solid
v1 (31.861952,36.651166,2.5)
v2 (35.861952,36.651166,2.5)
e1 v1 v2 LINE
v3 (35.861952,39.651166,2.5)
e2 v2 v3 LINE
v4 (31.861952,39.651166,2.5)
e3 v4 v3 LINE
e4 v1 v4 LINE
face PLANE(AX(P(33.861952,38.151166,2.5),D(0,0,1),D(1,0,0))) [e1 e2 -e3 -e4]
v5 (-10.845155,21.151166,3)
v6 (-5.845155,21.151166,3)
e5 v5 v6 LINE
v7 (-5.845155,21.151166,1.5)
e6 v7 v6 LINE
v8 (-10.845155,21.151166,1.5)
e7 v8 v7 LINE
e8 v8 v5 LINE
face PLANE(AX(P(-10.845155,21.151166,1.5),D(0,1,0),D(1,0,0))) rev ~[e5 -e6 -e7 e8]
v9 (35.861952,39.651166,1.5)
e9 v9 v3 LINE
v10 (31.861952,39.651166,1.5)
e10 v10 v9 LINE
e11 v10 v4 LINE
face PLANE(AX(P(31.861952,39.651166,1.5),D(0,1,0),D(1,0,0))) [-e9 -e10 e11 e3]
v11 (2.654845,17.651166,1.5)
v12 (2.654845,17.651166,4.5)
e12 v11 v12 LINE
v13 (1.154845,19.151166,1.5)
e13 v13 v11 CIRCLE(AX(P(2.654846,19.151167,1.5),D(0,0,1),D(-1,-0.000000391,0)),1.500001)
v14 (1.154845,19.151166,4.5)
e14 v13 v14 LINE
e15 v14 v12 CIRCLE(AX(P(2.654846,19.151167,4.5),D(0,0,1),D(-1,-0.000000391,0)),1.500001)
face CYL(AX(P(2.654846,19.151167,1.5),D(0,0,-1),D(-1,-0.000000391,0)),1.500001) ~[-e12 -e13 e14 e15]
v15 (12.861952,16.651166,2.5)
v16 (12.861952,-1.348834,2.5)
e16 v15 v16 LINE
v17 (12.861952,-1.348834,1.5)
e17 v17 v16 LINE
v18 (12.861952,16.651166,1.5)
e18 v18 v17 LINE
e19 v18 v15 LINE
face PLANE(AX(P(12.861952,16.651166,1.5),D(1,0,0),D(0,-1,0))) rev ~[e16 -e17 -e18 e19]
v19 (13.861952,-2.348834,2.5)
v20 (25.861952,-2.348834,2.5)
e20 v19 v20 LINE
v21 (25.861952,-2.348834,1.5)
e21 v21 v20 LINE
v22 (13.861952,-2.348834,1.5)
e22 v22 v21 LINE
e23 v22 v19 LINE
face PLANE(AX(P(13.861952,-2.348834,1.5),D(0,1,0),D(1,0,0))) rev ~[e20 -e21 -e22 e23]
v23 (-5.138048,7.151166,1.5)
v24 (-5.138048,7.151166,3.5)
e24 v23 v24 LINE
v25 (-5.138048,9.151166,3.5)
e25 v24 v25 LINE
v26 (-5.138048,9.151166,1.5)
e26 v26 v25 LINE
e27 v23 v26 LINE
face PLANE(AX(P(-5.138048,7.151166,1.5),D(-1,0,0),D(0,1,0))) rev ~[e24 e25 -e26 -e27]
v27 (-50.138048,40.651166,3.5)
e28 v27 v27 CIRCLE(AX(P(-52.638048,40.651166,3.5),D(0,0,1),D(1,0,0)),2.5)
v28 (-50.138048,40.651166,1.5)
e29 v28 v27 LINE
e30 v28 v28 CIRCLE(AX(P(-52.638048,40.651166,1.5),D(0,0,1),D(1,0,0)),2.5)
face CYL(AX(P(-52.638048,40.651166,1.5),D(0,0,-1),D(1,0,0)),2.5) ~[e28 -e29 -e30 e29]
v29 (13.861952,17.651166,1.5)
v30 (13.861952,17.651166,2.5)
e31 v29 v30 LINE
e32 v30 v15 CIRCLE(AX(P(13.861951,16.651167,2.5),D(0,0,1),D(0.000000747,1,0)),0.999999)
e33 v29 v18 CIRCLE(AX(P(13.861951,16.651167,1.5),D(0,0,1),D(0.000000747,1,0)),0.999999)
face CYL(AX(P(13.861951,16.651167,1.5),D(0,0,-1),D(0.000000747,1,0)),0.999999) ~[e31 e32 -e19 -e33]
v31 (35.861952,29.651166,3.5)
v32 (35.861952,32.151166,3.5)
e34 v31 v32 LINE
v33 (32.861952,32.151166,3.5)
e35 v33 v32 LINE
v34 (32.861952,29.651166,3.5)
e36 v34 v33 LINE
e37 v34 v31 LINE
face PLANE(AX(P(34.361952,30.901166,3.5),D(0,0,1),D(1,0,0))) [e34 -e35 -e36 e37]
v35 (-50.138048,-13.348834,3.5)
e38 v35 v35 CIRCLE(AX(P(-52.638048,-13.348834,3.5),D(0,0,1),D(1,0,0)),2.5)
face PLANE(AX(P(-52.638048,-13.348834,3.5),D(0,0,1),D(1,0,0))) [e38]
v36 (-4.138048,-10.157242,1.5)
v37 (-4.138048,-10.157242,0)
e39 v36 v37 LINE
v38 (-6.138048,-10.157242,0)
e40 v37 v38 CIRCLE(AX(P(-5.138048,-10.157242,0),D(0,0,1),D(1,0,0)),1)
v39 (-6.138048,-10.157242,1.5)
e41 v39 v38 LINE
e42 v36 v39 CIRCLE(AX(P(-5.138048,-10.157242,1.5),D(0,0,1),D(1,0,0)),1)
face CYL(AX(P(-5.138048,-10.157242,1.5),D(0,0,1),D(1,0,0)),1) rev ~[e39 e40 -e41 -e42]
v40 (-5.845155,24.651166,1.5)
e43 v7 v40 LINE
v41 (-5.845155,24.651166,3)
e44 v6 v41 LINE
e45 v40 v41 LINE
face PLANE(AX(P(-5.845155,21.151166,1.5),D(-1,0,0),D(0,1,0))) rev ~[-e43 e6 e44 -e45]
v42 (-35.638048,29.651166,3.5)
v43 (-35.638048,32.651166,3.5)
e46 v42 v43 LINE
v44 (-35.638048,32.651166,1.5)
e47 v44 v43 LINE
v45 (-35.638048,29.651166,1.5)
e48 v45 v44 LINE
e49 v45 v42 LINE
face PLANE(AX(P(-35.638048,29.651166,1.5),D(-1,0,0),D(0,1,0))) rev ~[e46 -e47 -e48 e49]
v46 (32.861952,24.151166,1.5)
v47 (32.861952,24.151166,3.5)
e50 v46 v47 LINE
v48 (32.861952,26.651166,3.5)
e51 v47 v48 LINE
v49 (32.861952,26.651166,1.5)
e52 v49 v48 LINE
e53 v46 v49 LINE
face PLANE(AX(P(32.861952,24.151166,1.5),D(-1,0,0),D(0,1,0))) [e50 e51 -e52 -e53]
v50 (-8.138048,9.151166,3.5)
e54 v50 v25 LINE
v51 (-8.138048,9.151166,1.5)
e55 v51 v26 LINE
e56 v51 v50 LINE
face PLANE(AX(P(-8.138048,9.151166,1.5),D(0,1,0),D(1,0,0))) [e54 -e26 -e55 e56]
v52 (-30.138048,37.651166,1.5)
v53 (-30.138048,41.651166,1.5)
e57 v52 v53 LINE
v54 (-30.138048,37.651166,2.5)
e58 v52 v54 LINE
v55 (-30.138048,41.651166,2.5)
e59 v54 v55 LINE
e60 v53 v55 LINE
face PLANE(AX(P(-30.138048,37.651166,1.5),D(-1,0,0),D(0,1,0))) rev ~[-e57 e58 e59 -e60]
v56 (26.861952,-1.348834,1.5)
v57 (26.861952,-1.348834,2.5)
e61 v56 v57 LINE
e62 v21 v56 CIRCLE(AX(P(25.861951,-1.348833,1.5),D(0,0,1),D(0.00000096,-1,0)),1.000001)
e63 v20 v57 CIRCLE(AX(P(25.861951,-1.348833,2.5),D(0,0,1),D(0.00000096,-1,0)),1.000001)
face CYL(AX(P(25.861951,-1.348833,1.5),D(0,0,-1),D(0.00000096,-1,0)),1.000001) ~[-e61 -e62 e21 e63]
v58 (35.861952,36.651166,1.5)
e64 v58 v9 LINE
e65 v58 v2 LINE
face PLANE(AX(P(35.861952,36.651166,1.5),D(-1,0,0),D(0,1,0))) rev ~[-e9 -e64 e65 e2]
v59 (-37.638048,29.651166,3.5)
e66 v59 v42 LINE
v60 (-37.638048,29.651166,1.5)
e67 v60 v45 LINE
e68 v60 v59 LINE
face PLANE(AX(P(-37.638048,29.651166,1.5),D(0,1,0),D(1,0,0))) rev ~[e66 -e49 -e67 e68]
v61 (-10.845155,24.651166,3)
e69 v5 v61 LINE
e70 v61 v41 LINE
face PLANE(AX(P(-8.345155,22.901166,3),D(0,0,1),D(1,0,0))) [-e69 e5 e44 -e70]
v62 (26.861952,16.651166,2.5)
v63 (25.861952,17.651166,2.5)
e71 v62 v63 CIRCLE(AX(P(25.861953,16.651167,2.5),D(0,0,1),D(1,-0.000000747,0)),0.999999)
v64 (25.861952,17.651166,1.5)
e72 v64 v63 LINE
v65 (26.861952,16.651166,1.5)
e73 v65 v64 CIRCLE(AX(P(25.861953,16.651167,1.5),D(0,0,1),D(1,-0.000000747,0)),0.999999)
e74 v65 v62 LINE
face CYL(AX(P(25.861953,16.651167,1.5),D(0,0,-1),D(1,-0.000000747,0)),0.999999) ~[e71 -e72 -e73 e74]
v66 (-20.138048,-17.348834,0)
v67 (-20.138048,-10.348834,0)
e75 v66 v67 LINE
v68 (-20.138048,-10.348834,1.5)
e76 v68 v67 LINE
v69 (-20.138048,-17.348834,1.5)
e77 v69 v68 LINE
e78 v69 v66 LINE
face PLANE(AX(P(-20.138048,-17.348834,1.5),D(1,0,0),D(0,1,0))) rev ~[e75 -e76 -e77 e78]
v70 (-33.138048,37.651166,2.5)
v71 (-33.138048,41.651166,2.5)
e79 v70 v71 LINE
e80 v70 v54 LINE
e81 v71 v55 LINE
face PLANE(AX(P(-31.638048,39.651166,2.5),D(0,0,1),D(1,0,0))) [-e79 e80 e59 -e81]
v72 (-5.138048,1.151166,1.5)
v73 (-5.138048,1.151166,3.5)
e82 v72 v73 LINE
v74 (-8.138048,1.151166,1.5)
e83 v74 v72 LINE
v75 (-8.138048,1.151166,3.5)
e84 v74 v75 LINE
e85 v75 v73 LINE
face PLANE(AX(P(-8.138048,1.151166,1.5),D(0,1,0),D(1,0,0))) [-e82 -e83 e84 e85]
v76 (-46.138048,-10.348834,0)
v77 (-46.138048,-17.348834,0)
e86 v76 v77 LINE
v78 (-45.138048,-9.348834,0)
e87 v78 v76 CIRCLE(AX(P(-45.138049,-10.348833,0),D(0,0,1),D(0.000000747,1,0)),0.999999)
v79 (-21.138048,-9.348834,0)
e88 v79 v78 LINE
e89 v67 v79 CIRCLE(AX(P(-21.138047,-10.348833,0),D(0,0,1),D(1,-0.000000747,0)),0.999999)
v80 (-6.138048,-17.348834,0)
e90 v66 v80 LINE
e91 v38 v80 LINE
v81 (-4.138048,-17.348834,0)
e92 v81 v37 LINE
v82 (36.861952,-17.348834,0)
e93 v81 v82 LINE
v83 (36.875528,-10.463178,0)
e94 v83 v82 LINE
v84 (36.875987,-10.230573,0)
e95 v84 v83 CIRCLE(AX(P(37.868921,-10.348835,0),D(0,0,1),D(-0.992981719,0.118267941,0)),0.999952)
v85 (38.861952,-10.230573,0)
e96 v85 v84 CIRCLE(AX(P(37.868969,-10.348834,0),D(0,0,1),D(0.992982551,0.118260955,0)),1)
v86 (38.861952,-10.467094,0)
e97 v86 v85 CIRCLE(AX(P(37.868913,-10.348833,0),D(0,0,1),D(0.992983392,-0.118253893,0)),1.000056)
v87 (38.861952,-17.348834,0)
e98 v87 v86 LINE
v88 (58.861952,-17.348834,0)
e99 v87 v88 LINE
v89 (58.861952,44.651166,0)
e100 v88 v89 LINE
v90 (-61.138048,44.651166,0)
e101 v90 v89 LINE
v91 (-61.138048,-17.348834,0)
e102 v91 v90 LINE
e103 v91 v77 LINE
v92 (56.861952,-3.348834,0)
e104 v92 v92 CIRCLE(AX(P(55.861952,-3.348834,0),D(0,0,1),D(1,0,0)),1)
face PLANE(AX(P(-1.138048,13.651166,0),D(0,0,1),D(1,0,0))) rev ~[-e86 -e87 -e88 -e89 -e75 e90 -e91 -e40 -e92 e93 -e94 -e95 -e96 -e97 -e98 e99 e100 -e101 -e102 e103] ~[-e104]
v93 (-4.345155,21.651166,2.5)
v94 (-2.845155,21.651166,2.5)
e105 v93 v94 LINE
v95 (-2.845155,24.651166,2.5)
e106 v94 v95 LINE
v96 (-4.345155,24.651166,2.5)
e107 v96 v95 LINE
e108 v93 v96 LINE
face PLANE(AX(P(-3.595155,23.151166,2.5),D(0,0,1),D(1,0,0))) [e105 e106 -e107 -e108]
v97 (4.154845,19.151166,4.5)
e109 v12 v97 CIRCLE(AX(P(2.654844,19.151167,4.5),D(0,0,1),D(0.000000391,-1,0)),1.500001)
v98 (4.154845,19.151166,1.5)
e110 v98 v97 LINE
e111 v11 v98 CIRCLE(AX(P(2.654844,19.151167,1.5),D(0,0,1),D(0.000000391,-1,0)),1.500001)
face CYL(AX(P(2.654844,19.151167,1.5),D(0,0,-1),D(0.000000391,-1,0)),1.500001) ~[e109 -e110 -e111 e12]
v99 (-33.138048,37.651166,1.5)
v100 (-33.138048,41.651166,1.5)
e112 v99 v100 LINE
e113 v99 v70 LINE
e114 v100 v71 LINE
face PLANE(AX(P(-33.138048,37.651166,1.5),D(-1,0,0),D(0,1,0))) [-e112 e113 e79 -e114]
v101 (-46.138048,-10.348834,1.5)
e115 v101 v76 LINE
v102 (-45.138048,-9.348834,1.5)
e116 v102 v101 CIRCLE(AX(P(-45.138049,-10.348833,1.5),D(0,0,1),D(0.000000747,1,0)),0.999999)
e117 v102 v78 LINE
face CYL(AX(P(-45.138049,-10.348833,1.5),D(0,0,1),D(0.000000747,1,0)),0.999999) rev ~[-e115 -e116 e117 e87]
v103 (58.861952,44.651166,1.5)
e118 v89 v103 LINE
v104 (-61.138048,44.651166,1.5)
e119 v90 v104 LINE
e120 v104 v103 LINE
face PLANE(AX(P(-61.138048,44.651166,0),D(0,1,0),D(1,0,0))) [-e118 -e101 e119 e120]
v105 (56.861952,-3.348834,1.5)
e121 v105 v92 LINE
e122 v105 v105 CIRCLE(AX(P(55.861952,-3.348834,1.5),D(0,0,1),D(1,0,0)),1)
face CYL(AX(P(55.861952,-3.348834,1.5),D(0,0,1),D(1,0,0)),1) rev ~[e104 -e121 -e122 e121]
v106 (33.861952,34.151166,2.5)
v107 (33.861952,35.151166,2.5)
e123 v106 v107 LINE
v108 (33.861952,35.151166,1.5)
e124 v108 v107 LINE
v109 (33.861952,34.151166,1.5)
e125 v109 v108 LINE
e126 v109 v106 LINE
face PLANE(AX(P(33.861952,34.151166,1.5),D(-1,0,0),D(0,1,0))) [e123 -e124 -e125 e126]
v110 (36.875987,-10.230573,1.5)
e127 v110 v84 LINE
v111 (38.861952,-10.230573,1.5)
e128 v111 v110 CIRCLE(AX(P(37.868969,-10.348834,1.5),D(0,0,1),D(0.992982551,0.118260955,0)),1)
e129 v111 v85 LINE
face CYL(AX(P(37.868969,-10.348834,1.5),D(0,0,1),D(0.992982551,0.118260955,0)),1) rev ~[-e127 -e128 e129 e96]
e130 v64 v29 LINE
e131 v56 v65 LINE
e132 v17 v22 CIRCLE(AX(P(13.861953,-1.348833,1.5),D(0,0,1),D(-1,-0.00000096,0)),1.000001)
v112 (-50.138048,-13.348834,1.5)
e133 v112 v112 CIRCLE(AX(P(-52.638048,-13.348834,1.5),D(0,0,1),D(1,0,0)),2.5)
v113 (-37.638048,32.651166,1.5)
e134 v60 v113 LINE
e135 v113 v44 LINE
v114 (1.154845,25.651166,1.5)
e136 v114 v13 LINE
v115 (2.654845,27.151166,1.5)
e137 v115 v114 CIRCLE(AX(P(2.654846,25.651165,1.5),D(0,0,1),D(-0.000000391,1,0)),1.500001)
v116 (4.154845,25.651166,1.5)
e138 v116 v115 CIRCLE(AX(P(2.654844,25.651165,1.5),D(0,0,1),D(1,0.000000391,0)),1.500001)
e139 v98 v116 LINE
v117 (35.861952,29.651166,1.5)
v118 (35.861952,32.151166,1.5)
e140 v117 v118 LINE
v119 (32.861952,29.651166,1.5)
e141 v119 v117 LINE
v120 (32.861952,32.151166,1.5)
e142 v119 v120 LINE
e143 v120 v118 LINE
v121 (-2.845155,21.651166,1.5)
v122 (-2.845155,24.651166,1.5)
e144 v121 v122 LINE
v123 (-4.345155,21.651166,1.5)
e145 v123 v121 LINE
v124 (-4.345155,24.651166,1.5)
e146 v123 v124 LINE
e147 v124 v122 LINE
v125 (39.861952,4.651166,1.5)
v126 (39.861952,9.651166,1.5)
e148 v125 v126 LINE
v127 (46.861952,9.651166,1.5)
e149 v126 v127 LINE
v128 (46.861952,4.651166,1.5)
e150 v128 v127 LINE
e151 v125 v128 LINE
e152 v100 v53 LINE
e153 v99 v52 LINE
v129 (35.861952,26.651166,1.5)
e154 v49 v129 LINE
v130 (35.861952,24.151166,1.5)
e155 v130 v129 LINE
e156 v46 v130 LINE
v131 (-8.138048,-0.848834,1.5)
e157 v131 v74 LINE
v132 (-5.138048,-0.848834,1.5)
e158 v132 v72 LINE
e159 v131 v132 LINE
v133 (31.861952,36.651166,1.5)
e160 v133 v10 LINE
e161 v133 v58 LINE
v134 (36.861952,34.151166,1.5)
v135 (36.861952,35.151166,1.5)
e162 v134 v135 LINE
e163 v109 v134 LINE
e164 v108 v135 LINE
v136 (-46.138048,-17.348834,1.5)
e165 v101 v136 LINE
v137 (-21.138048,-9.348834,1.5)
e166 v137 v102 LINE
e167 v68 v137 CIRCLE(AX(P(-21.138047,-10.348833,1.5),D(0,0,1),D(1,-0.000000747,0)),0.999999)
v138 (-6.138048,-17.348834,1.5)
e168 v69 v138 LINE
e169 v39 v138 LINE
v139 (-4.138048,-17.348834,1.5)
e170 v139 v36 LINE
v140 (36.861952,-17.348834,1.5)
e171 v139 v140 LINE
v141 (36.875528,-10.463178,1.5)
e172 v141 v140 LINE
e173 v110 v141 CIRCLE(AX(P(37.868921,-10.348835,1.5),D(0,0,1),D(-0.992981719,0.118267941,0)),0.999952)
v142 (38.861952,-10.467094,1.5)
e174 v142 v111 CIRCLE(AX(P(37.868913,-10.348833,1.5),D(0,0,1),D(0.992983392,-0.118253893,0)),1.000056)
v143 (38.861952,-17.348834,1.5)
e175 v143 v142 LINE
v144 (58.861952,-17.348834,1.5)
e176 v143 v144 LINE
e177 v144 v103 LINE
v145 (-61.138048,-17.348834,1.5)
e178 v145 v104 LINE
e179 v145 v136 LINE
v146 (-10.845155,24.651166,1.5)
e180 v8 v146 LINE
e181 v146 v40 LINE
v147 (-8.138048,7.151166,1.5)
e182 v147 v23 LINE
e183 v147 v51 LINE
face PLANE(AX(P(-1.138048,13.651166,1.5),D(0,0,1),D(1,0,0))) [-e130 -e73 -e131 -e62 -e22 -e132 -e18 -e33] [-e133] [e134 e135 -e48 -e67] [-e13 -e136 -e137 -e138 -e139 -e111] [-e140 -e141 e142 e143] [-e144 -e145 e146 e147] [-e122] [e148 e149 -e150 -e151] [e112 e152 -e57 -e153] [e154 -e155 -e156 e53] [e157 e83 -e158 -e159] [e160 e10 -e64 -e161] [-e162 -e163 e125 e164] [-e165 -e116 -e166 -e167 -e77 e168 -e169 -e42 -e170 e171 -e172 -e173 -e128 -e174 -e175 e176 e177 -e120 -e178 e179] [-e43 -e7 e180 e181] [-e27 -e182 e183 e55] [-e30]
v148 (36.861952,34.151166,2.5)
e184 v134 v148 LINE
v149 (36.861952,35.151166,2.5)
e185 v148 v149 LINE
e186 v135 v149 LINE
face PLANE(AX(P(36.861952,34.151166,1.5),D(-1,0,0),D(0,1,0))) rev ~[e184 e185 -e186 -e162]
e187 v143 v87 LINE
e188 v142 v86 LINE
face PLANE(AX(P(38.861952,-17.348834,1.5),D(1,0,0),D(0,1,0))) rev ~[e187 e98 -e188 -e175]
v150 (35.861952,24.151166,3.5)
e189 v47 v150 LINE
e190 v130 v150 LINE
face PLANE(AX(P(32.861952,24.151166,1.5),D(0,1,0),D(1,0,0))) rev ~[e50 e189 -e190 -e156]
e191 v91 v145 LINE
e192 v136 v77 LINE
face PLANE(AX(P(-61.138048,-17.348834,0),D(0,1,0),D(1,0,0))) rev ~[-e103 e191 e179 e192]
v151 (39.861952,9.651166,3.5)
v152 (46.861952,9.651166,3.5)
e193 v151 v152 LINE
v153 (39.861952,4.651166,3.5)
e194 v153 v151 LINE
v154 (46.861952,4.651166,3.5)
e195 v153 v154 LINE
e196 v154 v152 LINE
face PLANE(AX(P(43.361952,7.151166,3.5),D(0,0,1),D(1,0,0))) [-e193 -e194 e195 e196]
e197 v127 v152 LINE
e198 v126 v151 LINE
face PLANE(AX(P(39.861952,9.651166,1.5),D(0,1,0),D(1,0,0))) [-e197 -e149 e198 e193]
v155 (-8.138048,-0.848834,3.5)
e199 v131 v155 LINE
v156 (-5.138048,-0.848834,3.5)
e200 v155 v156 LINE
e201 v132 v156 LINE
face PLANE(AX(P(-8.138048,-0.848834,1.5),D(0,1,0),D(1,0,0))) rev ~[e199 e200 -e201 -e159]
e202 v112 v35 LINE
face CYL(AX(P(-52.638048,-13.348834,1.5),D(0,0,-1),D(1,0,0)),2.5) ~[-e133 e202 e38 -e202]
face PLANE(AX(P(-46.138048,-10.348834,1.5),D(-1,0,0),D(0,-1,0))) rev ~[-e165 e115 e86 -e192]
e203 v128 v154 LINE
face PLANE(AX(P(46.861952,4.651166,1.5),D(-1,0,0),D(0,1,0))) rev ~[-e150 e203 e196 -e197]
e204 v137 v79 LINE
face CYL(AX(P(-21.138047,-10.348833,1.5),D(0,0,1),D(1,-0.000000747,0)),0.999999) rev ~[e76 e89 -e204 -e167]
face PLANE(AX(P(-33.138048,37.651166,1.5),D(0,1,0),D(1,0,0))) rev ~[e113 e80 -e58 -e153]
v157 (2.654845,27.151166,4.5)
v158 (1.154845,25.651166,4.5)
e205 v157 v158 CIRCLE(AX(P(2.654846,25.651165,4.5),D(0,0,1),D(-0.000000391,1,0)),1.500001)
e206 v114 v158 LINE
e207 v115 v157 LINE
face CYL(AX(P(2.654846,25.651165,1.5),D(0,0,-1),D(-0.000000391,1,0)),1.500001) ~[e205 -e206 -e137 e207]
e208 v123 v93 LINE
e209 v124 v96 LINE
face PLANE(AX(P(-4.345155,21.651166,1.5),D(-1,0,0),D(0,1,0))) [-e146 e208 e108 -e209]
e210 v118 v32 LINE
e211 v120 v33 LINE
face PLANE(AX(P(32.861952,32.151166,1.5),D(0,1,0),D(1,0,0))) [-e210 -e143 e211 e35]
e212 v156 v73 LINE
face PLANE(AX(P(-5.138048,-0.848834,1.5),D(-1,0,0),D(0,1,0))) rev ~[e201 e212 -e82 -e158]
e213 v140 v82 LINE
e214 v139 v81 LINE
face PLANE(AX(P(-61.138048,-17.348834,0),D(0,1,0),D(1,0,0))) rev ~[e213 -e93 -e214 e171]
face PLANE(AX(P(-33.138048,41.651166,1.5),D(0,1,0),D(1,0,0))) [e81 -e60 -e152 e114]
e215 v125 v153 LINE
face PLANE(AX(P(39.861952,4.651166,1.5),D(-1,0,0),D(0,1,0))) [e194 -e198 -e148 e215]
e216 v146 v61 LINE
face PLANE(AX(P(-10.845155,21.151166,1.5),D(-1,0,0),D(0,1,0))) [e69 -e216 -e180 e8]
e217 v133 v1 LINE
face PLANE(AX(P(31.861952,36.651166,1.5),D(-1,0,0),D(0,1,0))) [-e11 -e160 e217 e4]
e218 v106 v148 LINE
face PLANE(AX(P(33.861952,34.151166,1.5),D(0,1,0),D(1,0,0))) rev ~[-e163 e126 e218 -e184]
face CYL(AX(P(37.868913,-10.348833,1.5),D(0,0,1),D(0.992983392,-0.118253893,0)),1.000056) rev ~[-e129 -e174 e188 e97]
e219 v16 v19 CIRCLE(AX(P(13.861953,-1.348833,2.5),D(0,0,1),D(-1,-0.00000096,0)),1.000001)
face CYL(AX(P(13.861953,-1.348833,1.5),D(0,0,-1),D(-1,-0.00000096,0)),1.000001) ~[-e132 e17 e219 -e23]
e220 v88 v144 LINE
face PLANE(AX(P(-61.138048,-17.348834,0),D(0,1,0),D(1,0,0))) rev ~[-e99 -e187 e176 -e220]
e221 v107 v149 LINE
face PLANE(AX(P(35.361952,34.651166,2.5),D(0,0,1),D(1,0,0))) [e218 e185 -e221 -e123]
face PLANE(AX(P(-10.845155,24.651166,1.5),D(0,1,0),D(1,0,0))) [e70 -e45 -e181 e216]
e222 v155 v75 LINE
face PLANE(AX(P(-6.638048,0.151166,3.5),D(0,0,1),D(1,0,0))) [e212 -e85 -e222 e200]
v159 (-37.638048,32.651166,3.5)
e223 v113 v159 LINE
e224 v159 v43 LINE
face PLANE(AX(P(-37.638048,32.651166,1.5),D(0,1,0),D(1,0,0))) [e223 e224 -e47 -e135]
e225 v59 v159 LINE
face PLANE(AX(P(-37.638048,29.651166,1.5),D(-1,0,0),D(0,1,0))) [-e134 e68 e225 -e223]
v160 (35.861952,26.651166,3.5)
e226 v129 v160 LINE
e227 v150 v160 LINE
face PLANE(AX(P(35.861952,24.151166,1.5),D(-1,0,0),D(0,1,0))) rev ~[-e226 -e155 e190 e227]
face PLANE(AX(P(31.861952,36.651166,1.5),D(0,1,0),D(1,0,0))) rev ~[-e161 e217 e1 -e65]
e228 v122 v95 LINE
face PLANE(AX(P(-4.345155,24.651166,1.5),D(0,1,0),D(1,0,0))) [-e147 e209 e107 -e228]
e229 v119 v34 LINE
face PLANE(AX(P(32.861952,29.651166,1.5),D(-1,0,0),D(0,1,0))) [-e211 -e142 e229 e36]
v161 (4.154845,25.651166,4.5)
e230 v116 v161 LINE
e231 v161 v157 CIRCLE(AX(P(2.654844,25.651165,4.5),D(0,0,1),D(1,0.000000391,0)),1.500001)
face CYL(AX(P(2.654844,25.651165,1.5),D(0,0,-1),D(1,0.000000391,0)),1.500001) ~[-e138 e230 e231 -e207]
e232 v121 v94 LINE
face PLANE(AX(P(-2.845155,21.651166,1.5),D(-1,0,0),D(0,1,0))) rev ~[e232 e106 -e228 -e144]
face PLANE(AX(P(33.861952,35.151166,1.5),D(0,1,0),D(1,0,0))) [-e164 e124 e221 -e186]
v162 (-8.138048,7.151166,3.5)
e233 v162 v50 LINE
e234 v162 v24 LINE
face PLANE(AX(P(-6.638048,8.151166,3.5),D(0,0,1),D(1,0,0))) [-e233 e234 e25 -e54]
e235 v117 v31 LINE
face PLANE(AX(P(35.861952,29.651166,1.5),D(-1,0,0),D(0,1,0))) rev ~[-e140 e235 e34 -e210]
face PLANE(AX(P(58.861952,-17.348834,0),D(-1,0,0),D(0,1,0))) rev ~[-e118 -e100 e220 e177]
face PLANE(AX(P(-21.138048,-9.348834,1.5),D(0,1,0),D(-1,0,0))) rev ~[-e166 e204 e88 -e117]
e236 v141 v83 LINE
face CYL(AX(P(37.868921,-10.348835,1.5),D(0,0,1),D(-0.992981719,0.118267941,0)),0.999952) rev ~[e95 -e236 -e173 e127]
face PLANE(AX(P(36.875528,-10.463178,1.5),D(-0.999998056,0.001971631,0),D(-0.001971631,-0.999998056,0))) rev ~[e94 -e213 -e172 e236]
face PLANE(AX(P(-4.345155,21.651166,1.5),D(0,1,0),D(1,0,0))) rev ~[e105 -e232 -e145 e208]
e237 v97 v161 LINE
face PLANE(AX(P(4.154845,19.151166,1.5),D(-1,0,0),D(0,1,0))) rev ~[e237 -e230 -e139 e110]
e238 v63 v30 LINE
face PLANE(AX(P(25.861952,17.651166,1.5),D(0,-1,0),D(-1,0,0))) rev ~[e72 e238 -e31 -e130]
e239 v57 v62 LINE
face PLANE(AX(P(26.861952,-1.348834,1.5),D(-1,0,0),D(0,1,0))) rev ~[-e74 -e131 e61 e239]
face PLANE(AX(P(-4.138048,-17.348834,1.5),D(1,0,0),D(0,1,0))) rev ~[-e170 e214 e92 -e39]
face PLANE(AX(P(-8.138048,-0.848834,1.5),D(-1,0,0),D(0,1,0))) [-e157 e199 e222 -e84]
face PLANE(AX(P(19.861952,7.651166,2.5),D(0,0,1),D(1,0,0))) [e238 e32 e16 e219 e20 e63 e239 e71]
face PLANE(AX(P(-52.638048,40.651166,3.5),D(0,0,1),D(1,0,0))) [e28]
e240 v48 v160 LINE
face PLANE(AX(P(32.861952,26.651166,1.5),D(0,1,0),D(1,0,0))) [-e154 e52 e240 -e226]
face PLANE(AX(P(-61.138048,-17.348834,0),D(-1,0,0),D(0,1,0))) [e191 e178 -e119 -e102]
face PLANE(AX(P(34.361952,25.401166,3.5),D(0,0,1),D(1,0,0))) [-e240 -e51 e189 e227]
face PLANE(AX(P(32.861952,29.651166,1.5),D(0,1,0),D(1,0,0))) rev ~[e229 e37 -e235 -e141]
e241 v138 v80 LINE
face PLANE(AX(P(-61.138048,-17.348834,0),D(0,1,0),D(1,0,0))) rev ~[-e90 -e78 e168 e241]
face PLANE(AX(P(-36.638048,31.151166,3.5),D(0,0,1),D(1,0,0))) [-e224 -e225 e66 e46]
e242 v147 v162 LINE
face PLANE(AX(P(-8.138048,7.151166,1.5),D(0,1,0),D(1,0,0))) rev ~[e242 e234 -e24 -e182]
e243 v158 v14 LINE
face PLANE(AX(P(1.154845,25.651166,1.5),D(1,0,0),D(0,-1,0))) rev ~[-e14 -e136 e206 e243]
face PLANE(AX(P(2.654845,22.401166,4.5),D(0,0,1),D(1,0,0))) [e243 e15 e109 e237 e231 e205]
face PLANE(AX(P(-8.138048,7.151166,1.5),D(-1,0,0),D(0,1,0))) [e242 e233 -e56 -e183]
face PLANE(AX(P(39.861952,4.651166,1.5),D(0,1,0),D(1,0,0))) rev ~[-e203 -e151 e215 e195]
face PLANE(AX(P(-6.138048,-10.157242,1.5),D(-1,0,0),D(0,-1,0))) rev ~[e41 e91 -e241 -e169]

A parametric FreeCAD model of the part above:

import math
import FreeCAD as App
import Part
import Sketcher
from FreeCAD import Vector

doc = App.newDocument("Part")
body = doc.addObject("PartDesign::Body", "Body")

# Sketch on XY plane
sketch1 = doc.addObject("Sketcher::SketchObject", "Sketch")
body.addObject(sketch1)
sketch1.AttachmentSupport = (doc.XY_Plane, [""])
sketch1.MapMode = "FlatFace"
sketch1.addGeometry([
    Part.LineSegment(Vector(-61, 45, 0), Vector(-61, -17, 0)),
    Part.LineSegment(Vector(-61, -17, 0), Vector(59, -17, 0)),
    Part.LineSegment(Vector(59, -17, 0), Vector(59, 45, 0)),
    Part.LineSegment(Vector(59, 45, 0), Vector(-61, 45, 0)),
], False)
sketch1.addConstraint([
    Sketcher.Constraint("Coincident", 0, 2, 1, 1),
    Sketcher.Constraint("Coincident", 1, 2, 2, 1),
    Sketcher.Constraint("Coincident", 2, 2, 3, 1),
    Sketcher.Constraint("Coincident", 3, 2, 0, 1),
    Sketcher.Constraint("Vertical", 0),
    Sketcher.Constraint("Horizontal", 1),
    Sketcher.Constraint("Vertical", 2),
    Sketcher.Constraint("Horizontal", 3),
    Sketcher.Constraint("DistanceX", 1, 1, 1, 2, 120.0),
    Sketcher.Constraint("DistanceY", 0, 2, 0, 1, 62.0),
    Sketcher.Constraint("DistanceX", 0, 2, -1, 1, 61.138048),
    Sketcher.Constraint("DistanceY", 0, 2, -1, 1, 17.348834),
])
pad1 = doc.addObject("PartDesign::Pad", "Pad")
body.addObject(pad1)
pad1.Profile = sketch1
pad1.Length = 1.5

# Sketch on XY plane
sketch2 = doc.addObject("Sketcher::SketchObject", "Sketch001")
body.addObject(sketch2)
sketch2.AttachmentSupport = (doc.XY_Plane, [""])
sketch2.MapMode = "FlatFace"
sketch2.AttachmentOffset = App.Placement(Vector(0, 0, 1.5), App.Rotation())
sketch2.addGeometry([
    Part.LineSegment(Vector(-46.1, -10.3, 0), Vector(-46.1, -17.3, 0)),  # 0
    Part.LineSegment(Vector(-46.1, -17.3, 0), Vector(-20.1, -17.3, 0)),  # 1
    Part.LineSegment(Vector(-20.1, -17.3, 0), Vector(-20.1, -10.3, 0)),  # 2
    Part.ArcOfCircle(Part.Circle(Vector(-21.1, -10.3, 0), Vector(0, 0, 1), 1), math.radians(0), math.radians(90)),  # 3
    Part.LineSegment(Vector(-21.1, -9.3, 0), Vector(-45.1, -9.3, 0)),  # 4
    Part.ArcOfCircle(Part.Circle(Vector(-45.1, -10.3, 0), Vector(0, 0, 1), 1), math.radians(90), math.radians(180)),  # 5
], False)
sketch2.addConstraint([
    Sketcher.Constraint("Coincident", 0, 2, 1, 1),
    Sketcher.Constraint("Coincident", 1, 2, 2, 1),
    Sketcher.Constraint("Tangent", 2, 2, 3, 1),
    Sketcher.Constraint("Tangent", 3, 2, 4, 1),
    Sketcher.Constraint("Tangent", 4, 2, 5, 1),
    Sketcher.Constraint("Tangent", 5, 2, 0, 1),
    Sketcher.Constraint("Vertical", 0),
    Sketcher.Constraint("Horizontal", 1),
    Sketcher.Constraint("Vertical", 2),
    Sketcher.Constraint("Horizontal", 4),
    Sketcher.Constraint("Equal", 3, 5),
    Sketcher.Constraint("Radius", 3, 0.999999),
    Sketcher.Constraint("DistanceX", 1, 1, 1, 2, 26.0),
    Sketcher.Constraint("DistanceY", 0, 2, 0, 1, 7.0),
    Sketcher.Constraint("DistanceX", 5, 3, -1, 1, 45.138049),
    Sketcher.Constraint("DistanceY", 3, 3, -1, 1, 10.348833),
])
pocket1 = doc.addObject("PartDesign::Pocket", "Pocket")
body.addObject(pocket1)
pocket1.Profile = sketch2
pocket1.Type = "ThroughAll"

# Sketch on XY plane
sketch3 = doc.addObject("Sketcher::SketchObject", "Sketch002")
body.addObject(sketch3)
sketch3.AttachmentSupport = (doc.XY_Plane, [""])
sketch3.MapMode = "FlatFace"
sketch3.AttachmentOffset = App.Placement(Vector(0, 0, 1.5), App.Rotation())
sketch3.addGeometry([
    Part.LineSegment(Vector(-6.1, -10.2, 0), Vector(-6.1, -17.3, 0)),
    Part.LineSegment(Vector(-6.1, -17.3, 0), Vector(-4.1, -17.3, 0)),
    Part.LineSegment(Vector(-4.1, -17.3, 0), Vector(-4.1, -10.2, 0)),
    Part.ArcOfCircle(Part.Circle(Vector(-5.1, -10.2, 0), Vector(0, 0, 1), 1), math.radians(0), math.radians(180)),
], False)
sketch3.addConstraint([
    Sketcher.Constraint("Coincident", 0, 2, 1, 1),
    Sketcher.Constraint("Coincident", 1, 2, 2, 1),
    Sketcher.Constraint("Tangent", 2, 2, 3, 1),
    Sketcher.Constraint("Tangent", 3, 2, 0, 1),
    Sketcher.Constraint("Vertical", 0),
    Sketcher.Constraint("Horizontal", 1),
    Sketcher.Constraint("Vertical", 2),
    Sketcher.Constraint("Radius", 3, 1.0),
    Sketcher.Constraint("DistanceY", 0, 2, 0, 1, 7.191592),
    Sketcher.Constraint("DistanceX", 3, 3, -1, 1, 5.138048),
    Sketcher.Constraint("DistanceY", 3, 3, -1, 1, 10.157242),
])
pocket2 = doc.addObject("PartDesign::Pocket", "Pocket001")
body.addObject(pocket2)
pocket2.Profile = sketch3
pocket2.Type = "ThroughAll"

# Sketch on XY plane
sketch4 = doc.addObject("Sketcher::SketchObject", "Sketch003")
body.addObject(sketch4)
sketch4.AttachmentSupport = (doc.XY_Plane, [""])
sketch4.MapMode = "FlatFace"
sketch4.AttachmentOffset = App.Placement(Vector(0, 0, 1.5), App.Rotation())
sketch4.addGeometry([
    Part.ArcOfCircle(Part.Circle(Vector(37.87, -10.35, 0), Vector(0, 0, 1), 1), math.radians(-6.79), math.radians(6.79)),  # 0
    Part.ArcOfCircle(Part.Circle(Vector(37.87, -10.35, 0), Vector(0, 0, 1), 1), math.radians(7), math.radians(173)),  # 1
    Part.ArcOfCircle(Part.Circle(Vector(37.87, -10.35, 0), Vector(0, 0, 1), 1), math.radians(173.21), math.radians(186.57)),  # 2
    Part.LineSegment(Vector(36.88, -10.46, 0), Vector(36.86, -17.35, 0)),  # 3
    Part.LineSegment(Vector(36.86, -17.35, 0), Vector(38.86, -17.35, 0)),  # 4
    Part.LineSegment(Vector(38.86, -17.35, 0), Vector(38.86, -10.47, 0)),  # 5
], False)
sketch4.addConstraint([
    Sketcher.Constraint("Coincident", 0, 2, 1, 1),
    Sketcher.Constraint("Coincident", 1, 2, 2, 1),
    Sketcher.Constraint("Coincident", 2, 2, 3, 1),
    Sketcher.Constraint("Coincident", 3, 2, 4, 1),
    Sketcher.Constraint("Coincident", 4, 2, 5, 1),
    Sketcher.Constraint("Coincident", 5, 2, 0, 1),
    Sketcher.Constraint("Horizontal", 4),
    Sketcher.Constraint("Vertical", 5),
    Sketcher.Constraint("Coincident", 2, 3, 0, 3),
    Sketcher.Constraint("Horizontal", 0, 3, 1, 3),
    Sketcher.Constraint("Horizontal", 0, 2, 1, 2),
    Sketcher.Constraint("Vertical", 0, 2, 4, 2),
    Sketcher.Constraint("Radius", 1, 1.0),
    Sketcher.Constraint("DistanceX", 4, 1, 4, 2, 2.0),
    Sketcher.Constraint("DistanceY", 3, 2, 2, 3, 6.999999),
    Sketcher.Constraint("Radius", 0, 1.000056),
    Sketcher.Constraint("DistanceY", 5, 1, 5, 2, 6.88174),
    Sketcher.Constraint("Distance", 3, 6.885669),
    Sketcher.Constraint("DistanceX", -1, 1, 1, 3, 37.868969),
    Sketcher.Constraint("DistanceY", 0, 3, -1, 1, 10.348833),
])
pocket3 = doc.addObject("PartDesign::Pocket", "Pocket002")
body.addObject(pocket3)
pocket3.Profile = sketch4
pocket3.Type = "ThroughAll"

# Sketch on XY plane
sketch5 = doc.addObject("Sketcher::SketchObject", "Sketch004")
body.addObject(sketch5)
sketch5.AttachmentSupport = (doc.XY_Plane, [""])
sketch5.MapMode = "FlatFace"
sketch5.AttachmentOffset = App.Placement(Vector(0, 0, 1.5), App.Rotation())
sketch5.addGeometry(Part.Circle(Vector(55.9, -3.3, 0), Vector(0, 0, 1), 1), False)
sketch5.addConstraint([
    Sketcher.Constraint("Diameter", 0, 2.0),
    Sketcher.Constraint("DistanceX", -1, 1, 0, 3, 55.861952),
    Sketcher.Constraint("DistanceY", 0, 3, -1, 1, 3.348834),
])
pocket4 = doc.addObject("PartDesign::Pocket", "Pocket003")
body.addObject(pocket4)
pocket4.Profile = sketch5
pocket4.Type = "ThroughAll"

# Sketch on XY plane
sketch6 = doc.addObject("Sketcher::SketchObject", "Sketch005")
body.addObject(sketch6)
sketch6.AttachmentSupport = (doc.XY_Plane, [""])
sketch6.MapMode = "FlatFace"
sketch6.AttachmentOffset = App.Placement(Vector(0, 0, 1.5), App.Rotation())
sketch6.addGeometry([
    Part.LineSegment(Vector(40, 10, 0), Vector(40, 5, 0)),
    Part.LineSegment(Vector(40, 5, 0), Vector(47, 5, 0)),
    Part.LineSegment(Vector(47, 5, 0), Vector(47, 10, 0)),
    Part.LineSegment(Vector(47, 10, 0), Vector(40, 10, 0)),
], False)
sketch6.addConstraint([
    Sketcher.Constraint("Coincident", 0, 2, 1, 1),
    Sketcher.Constraint("Coincident", 1, 2, 2, 1),
    Sketcher.Constraint("Coincident", 2, 2, 3, 1),
    Sketcher.Constraint("Coincident", 3, 2, 0, 1),
    Sketcher.Constraint("Vertical", 0),
    Sketcher.Constraint("Horizontal", 1),
    Sketcher.Constraint("Vertical", 2),
    Sketcher.Constraint("Horizontal", 3),
    Sketcher.Constraint("DistanceX", 1, 1, 1, 2, 7.0),
    Sketcher.Constraint("DistanceY", 0, 2, 0, 1, 5.0),
    Sketcher.Constraint("DistanceX", -1, 1, 0, 2, 39.861952),
    Sketcher.Constraint("DistanceY", -1, 1, 0, 2, 4.651166),
])
pad2 = doc.addObject("PartDesign::Pad", "Pad001")
body.addObject(pad2)
pad2.Profile = sketch6
pad2.Length = 2

# Sketch on XY plane
sketch7 = doc.addObject("Sketcher::SketchObject", "Sketch006")
body.addObject(sketch7)
sketch7.AttachmentSupport = (doc.XY_Plane, [""])
sketch7.MapMode = "FlatFace"
sketch7.AttachmentOffset = App.Placement(Vector(0, 0, 1.5), App.Rotation())
sketch7.addGeometry([
    Part.LineSegment(Vector(25.9, 17.7, 0), Vector(13.9, 17.7, 0)),  # 0
    Part.ArcOfCircle(Part.Circle(Vector(13.9, 16.7, 0), Vector(0, 0, 1), 1), math.radians(90), math.radians(180)),  # 1
    Part.LineSegment(Vector(12.9, 16.7, 0), Vector(12.9, -1.3, 0)),  # 2
    Part.ArcOfCircle(Part.Circle(Vector(13.9, -1.3, 0), Vector(0, 0, 1), 1), math.radians(-180), math.radians(-90)),  # 3
    Part.LineSegment(Vector(13.9, -2.3, 0), Vector(25.9, -2.3, 0)),  # 4
    Part.ArcOfCircle(Part.Circle(Vector(25.9, -1.3, 0), Vector(0, 0, 1), 1), math.radians(-90), math.radians(0)),  # 5
    Part.LineSegment(Vector(26.9, -1.3, 0), Vector(26.9, 16.7, 0)),  # 6
    Part.ArcOfCircle(Part.Circle(Vector(25.9, 16.7, 0), Vector(0, 0, 1), 1), math.radians(0), math.radians(90)),  # 7
], False)
sketch7.addConstraint([
    Sketcher.Constraint("Tangent", 0, 2, 1, 1),
    Sketcher.Constraint("Tangent", 1, 2, 2, 1),
    Sketcher.Constraint("Tangent", 2, 2, 3, 1),
    Sketcher.Constraint("Tangent", 3, 2, 4, 1),
    Sketcher.Constraint("Tangent", 4, 2, 5, 1),
    Sketcher.Constraint("Tangent", 5, 2, 6, 1),
    Sketcher.Constraint("Tangent", 6, 2, 7, 1),
    Sketcher.Constraint("Tangent", 7, 2, 0, 1),
    Sketcher.Constraint("Horizontal", 0),
    Sketcher.Constraint("Vertical", 2),
    Sketcher.Constraint("Horizontal", 4),
    Sketcher.Constraint("Vertical", 6),
    Sketcher.Constraint("Equal", 1, 3),
    Sketcher.Constraint("Equal", 3, 5),
    Sketcher.Constraint("Equal", 5, 7),
    Sketcher.Constraint("Radius", 1, 0.999999),
    Sketcher.Constraint("DistanceX", 0, 2, 0, 1, 12.0),
    Sketcher.Constraint("DistanceY", 2, 2, 2, 1, 18.0),
    Sketcher.Constraint("DistanceX", -1, 1, 1, 3, 13.861951),
    Sketcher.Constraint("DistanceY", -1, 1, 1, 3, 16.651167),
])
pad3 = doc.addObject("PartDesign::Pad", "Pad002")
body.addObject(pad3)
pad3.Profile = sketch7
pad3.Length = 1

# Sketch on XY plane
sketch8 = doc.addObject("Sketcher::SketchObject", "Sketch007")
body.addObject(sketch8)
sketch8.AttachmentSupport = (doc.XY_Plane, [""])
sketch8.MapMode = "FlatFace"
sketch8.AttachmentOffset = App.Placement(Vector(0, 0, 1.5), App.Rotation())
sketch8.addGeometry([
    Part.LineSegment(Vector(32.9, 26.7, 0), Vector(32.9, 24.2, 0)),
    Part.LineSegment(Vector(32.9, 24.2, 0), Vector(35.9, 24.2, 0)),
    Part.LineSegment(Vector(35.9, 24.2, 0), Vector(35.9, 26.7, 0)),
    Part.LineSegment(Vector(35.9, 26.7, 0), Vector(32.9, 26.7, 0)),
], False)
sketch8.addConstraint([
    Sketcher.Constraint("Coincident", 0, 2, 1, 1),
    Sketcher.Constraint("Coincident", 1, 2, 2, 1),
    Sketcher.Constraint("Coincident", 2, 2, 3, 1),
    Sketcher.Constraint("Coincident", 3, 2, 0, 1),
    Sketcher.Constraint("Vertical", 0),
    Sketcher.Constraint("Horizontal", 1),
    Sketcher.Constraint("Vertical", 2),
    Sketcher.Constraint("Horizontal", 3),
    Sketcher.Constraint("DistanceX", 1, 1, 1, 2, 3.0),
    Sketcher.Constraint("DistanceY", 0, 2, 0, 1, 2.5),
    Sketcher.Constraint("DistanceX", -1, 1, 0, 2, 32.861952),
    Sketcher.Constraint("DistanceY", -1, 1, 0, 2, 24.151166),
])
pad4 = doc.addObject("PartDesign::Pad", "Pad003")
body.addObject(pad4)
pad4.Profile = sketch8
pad4.Length = 2

# Sketch on XY plane
sketch9 = doc.addObject("Sketcher::SketchObject", "Sketch008")
body.addObject(sketch9)
sketch9.AttachmentSupport = (doc.XY_Plane, [""])
sketch9.MapMode = "FlatFace"
sketch9.AttachmentOffset = App.Placement(Vector(0, 0, 1.5), App.Rotation())
sketch9.addGeometry([
    Part.LineSegment(Vector(32.9, 32.2, 0), Vector(32.9, 29.7, 0)),
    Part.LineSegment(Vector(32.9, 29.7, 0), Vector(35.9, 29.7, 0)),
    Part.LineSegment(Vector(35.9, 29.7, 0), Vector(35.9, 32.2, 0)),
    Part.LineSegment(Vector(35.9, 32.2, 0), Vector(32.9, 32.2, 0)),
], False)
sketch9.addConstraint([
    Sketcher.Constraint("Coincident", 0, 2, 1, 1),
    Sketcher.Constraint("Coincident", 1, 2, 2, 1),
    Sketcher.Constraint("Coincident", 2, 2, 3, 1),
    Sketcher.Constraint("Coincident", 3, 2, 0, 1),
    Sketcher.Constraint("Vertical", 0),
    Sketcher.Constraint("Horizontal", 1),
    Sketcher.Constraint("Vertical", 2),
    Sketcher.Constraint("Horizontal", 3),
    Sketcher.Constraint("DistanceX", 1, 1, 1, 2, 3.0),
    Sketcher.Constraint("DistanceY", 0, 2, 0, 1, 2.5),
    Sketcher.Constraint("DistanceX", -1, 1, 0, 2, 32.861952),
    Sketcher.Constraint("DistanceY", -1, 1, 0, 2, 29.651166),
])
pad5 = doc.addObject("PartDesign::Pad", "Pad004")
body.addObject(pad5)
pad5.Profile = sketch9
pad5.Length = 2

# Sketch on XY plane
sketch10 = doc.addObject("Sketcher::SketchObject", "Sketch009")
body.addObject(sketch10)
sketch10.AttachmentSupport = (doc.XY_Plane, [""])
sketch10.MapMode = "FlatFace"
sketch10.AttachmentOffset = App.Placement(Vector(0, 0, 1.5), App.Rotation())
sketch10.addGeometry([
    Part.LineSegment(Vector(33.9, 35.2, 0), Vector(33.9, 34.2, 0)),
    Part.LineSegment(Vector(33.9, 34.2, 0), Vector(36.9, 34.2, 0)),
    Part.LineSegment(Vector(36.9, 34.2, 0), Vector(36.9, 35.2, 0)),
    Part.LineSegment(Vector(36.9, 35.2, 0), Vector(33.9, 35.2, 0)),
], False)
sketch10.addConstraint([
    Sketcher.Constraint("Coincident", 0, 2, 1, 1),
    Sketcher.Constraint("Coincident", 1, 2, 2, 1),
    Sketcher.Constraint("Coincident", 2, 2, 3, 1),
    Sketcher.Constraint("Coincident", 3, 2, 0, 1),
    Sketcher.Constraint("Vertical", 0),
    Sketcher.Constraint("Horizontal", 1),
    Sketcher.Constraint("Vertical", 2),
    Sketcher.Constraint("Horizontal", 3),
    Sketcher.Constraint("DistanceX", 1, 1, 1, 2, 3.0),
    Sketcher.Constraint("DistanceY", 0, 2, 0, 1, 1.0),
    Sketcher.Constraint("DistanceX", -1, 1, 0, 2, 33.861952),
    Sketcher.Constraint("DistanceY", -1, 1, 0, 2, 34.151166),
])
pad6 = doc.addObject("PartDesign::Pad", "Pad005")
body.addObject(pad6)
pad6.Profile = sketch10
pad6.Length = 1

# Sketch on XY plane
sketch11 = doc.addObject("Sketcher::SketchObject", "Sketch010")
body.addObject(sketch11)
sketch11.AttachmentSupport = (doc.XY_Plane, [""])
sketch11.MapMode = "FlatFace"
sketch11.AttachmentOffset = App.Placement(Vector(0, 0, 1.5), App.Rotation())
sketch11.addGeometry([
    Part.LineSegment(Vector(31.9, 39.7, 0), Vector(31.9, 36.7, 0)),
    Part.LineSegment(Vector(31.9, 36.7, 0), Vector(35.9, 36.7, 0)),
    Part.LineSegment(Vector(35.9, 36.7, 0), Vector(35.9, 39.7, 0)),
    Part.LineSegment(Vector(35.9, 39.7, 0), Vector(31.9, 39.7, 0)),
], False)
sketch11.addConstraint([
    Sketcher.Constraint("Coincident", 0, 2, 1, 1),
    Sketcher.Constraint("Coincident", 1, 2, 2, 1),
    Sketcher.Constraint("Coincident", 2, 2, 3, 1),
    Sketcher.Constraint("Coincident", 3, 2, 0, 1),
    Sketcher.Constraint("Vertical", 0),
    Sketcher.Constraint("Horizontal", 1),
    Sketcher.Constraint("Vertical", 2),
    Sketcher.Constraint("Horizontal", 3),
    Sketcher.Constraint("DistanceX", 1, 1, 1, 2, 4.0),
    Sketcher.Constraint("DistanceY", 0, 2, 0, 1, 3.0),
    Sketcher.Constraint("DistanceX", -1, 1, 0, 2, 31.861952),
    Sketcher.Constraint("DistanceY", -1, 1, 0, 2, 36.651166),
])
pad7 = doc.addObject("PartDesign::Pad", "Pad006")
body.addObject(pad7)
pad7.Profile = sketch11
pad7.Length = 1

# Sketch on XY plane
sketch12 = doc.addObject("Sketcher::SketchObject", "Sketch011")
body.addObject(sketch12)
sketch12.AttachmentSupport = (doc.XY_Plane, [""])
sketch12.MapMode = "FlatFace"
sketch12.AttachmentOffset = App.Placement(Vector(0, 0, 1.5), App.Rotation())
sketch12.addGeometry([
    Part.ArcOfCircle(Part.Circle(Vector(2.7, 25.7, 0), Vector(0, 0, 1), 1.5), math.radians(90), math.radians(180)),  # 0
    Part.LineSegment(Vector(1.2, 25.7, 0), Vector(1.2, 19.2, 0)),  # 1
    Part.ArcOfCircle(Part.Circle(Vector(2.7, 19.2, 0), Vector(0, 0, 1), 1.5), math.radians(-180), math.radians(-90)),  # 2
    Part.ArcOfCircle(Part.Circle(Vector(2.7, 19.2, 0), Vector(0, 0, 1), 1.5), math.radians(-90), math.radians(0)),  # 3
    Part.LineSegment(Vector(4.2, 19.2, 0), Vector(4.2, 25.7, 0)),  # 4
    Part.ArcOfCircle(Part.Circle(Vector(2.7, 25.7, 0), Vector(0, 0, 1), 1.5), math.radians(0), math.radians(90)),  # 5
], False)
sketch12.addConstraint([
    Sketcher.Constraint("Tangent", 0, 2, 1, 1),
    Sketcher.Constraint("Tangent", 1, 2, 2, 1),
    Sketcher.Constraint("Tangent", 2, 2, 3, 1),
    Sketcher.Constraint("Tangent", 3, 2, 4, 1),
    Sketcher.Constraint("Tangent", 4, 2, 5, 1),
    Sketcher.Constraint("Tangent", 5, 2, 0, 1),
    Sketcher.Constraint("Vertical", 1),
    Sketcher.Constraint("Vertical", 4),
    Sketcher.Constraint("Equal", 0, 2),
    Sketcher.Constraint("Equal", 2, 3),
    Sketcher.Constraint("Vertical", 5, 3, 2, 2),
    Sketcher.Constraint("Vertical", 2, 2, 5, 2),
    Sketcher.Constraint("Radius", 0, 1.500001),
    Sketcher.Constraint("DistanceY", 1, 2, 1, 1, 6.5),
    Sketcher.Constraint("DistanceX", -1, 1, 0, 3, 2.654846),
    Sketcher.Constraint("DistanceY", -1, 1, 0, 3, 25.651165),
])
pad8 = doc.addObject("PartDesign::Pad", "Pad007")
body.addObject(pad8)
pad8.Profile = sketch12
pad8.Length = 3

# Sketch on XY plane
sketch13 = doc.addObject("Sketcher::SketchObject", "Sketch012")
body.addObject(sketch13)
sketch13.AttachmentSupport = (doc.XY_Plane, [""])
sketch13.MapMode = "FlatFace"
sketch13.AttachmentOffset = App.Placement(Vector(0, 0, 1.5), App.Rotation())
sketch13.addGeometry([
    Part.LineSegment(Vector(-4.3, 24.7, 0), Vector(-4.3, 21.7, 0)),
    Part.LineSegment(Vector(-4.3, 21.7, 0), Vector(-2.8, 21.7, 0)),
    Part.LineSegment(Vector(-2.8, 21.7, 0), Vector(-2.8, 24.7, 0)),
    Part.LineSegment(Vector(-2.8, 24.7, 0), Vector(-4.3, 24.7, 0)),
], False)
sketch13.addConstraint([
    Sketcher.Constraint("Coincident", 0, 2, 1, 1),
    Sketcher.Constraint("Coincident", 1, 2, 2, 1),
    Sketcher.Constraint("Coincident", 2, 2, 3, 1),
    Sketcher.Constraint("Coincident", 3, 2, 0, 1),
    Sketcher.Constraint("Vertical", 0),
    Sketcher.Constraint("Horizontal", 1),
    Sketcher.Constraint("Vertical", 2),
    Sketcher.Constraint("Horizontal", 3),
    Sketcher.Constraint("DistanceY", 0, 2, 0, 1, 3.0),
    Sketcher.Constraint("DistanceX", 1, 1, 1, 2, 1.5),
    Sketcher.Constraint("DistanceX", 0, 2, -1, 1, 4.345155),
    Sketcher.Constraint("DistanceY", -1, 1, 0, 2, 21.651166),
])
pad9 = doc.addObject("PartDesign::Pad", "Pad008")
body.addObject(pad9)
pad9.Profile = sketch13
pad9.Length = 1

# Sketch on XY plane
sketch14 = doc.addObject("Sketcher::SketchObject", "Sketch013")
body.addObject(sketch14)
sketch14.AttachmentSupport = (doc.XY_Plane, [""])
sketch14.MapMode = "FlatFace"
sketch14.AttachmentOffset = App.Placement(Vector(0, 0, 1.5), App.Rotation())
sketch14.addGeometry([
    Part.LineSegment(Vector(-10.8, 24.7, 0), Vector(-10.8, 21.2, 0)),
    Part.LineSegment(Vector(-10.8, 21.2, 0), Vector(-5.8, 21.2, 0)),
    Part.LineSegment(Vector(-5.8, 21.2, 0), Vector(-5.8, 24.7, 0)),
    Part.LineSegment(Vector(-5.8, 24.7, 0), Vector(-10.8, 24.7, 0)),
], False)
sketch14.addConstraint([
    Sketcher.Constraint("Coincident", 0, 2, 1, 1),
    Sketcher.Constraint("Coincident", 1, 2, 2, 1),
    Sketcher.Constraint("Coincident", 2, 2, 3, 1),
    Sketcher.Constraint("Coincident", 3, 2, 0, 1),
    Sketcher.Constraint("Vertical", 0),
    Sketcher.Constraint("Horizontal", 1),
    Sketcher.Constraint("Vertical", 2),
    Sketcher.Constraint("Horizontal", 3),
    Sketcher.Constraint("DistanceX", 1, 1, 1, 2, 5.0),
    Sketcher.Constraint("DistanceY", 0, 2, 0, 1, 3.5),
    Sketcher.Constraint("DistanceX", 0, 2, -1, 1, 10.845155),
    Sketcher.Constraint("DistanceY", -1, 1, 0, 2, 21.151166),
])
pad10 = doc.addObject("PartDesign::Pad", "Pad009")
body.addObject(pad10)
pad10.Profile = sketch14
pad10.Length = 1.5

# Sketch on XY plane
sketch15 = doc.addObject("Sketcher::SketchObject", "Sketch014")
body.addObject(sketch15)
sketch15.AttachmentSupport = (doc.XY_Plane, [""])
sketch15.MapMode = "FlatFace"
sketch15.AttachmentOffset = App.Placement(Vector(0, 0, 1.5), App.Rotation())
sketch15.addGeometry([
    Part.LineSegment(Vector(-8.1, 9.2, 0), Vector(-8.1, 7.2, 0)),
    Part.LineSegment(Vector(-8.1, 7.2, 0), Vector(-5.1, 7.2, 0)),
    Part.LineSegment(Vector(-5.1, 7.2, 0), Vector(-5.1, 9.2, 0)),
    Part.LineSegment(Vector(-5.1, 9.2, 0), Vector(-8.1, 9.2, 0)),
], False)
sketch15.addConstraint([
    Sketcher.Constraint("Coincident", 0, 2, 1, 1),
    Sketcher.Constraint("Coincident", 1, 2, 2, 1),
    Sketcher.Constraint("Coincident", 2, 2, 3, 1),
    Sketcher.Constraint("Coincident", 3, 2, 0, 1),
    Sketcher.Constraint("Vertical", 0),
    Sketcher.Constraint("Horizontal", 1),
    Sketcher.Constraint("Vertical", 2),
    Sketcher.Constraint("Horizontal", 3),
    Sketcher.Constraint("DistanceX", 1, 1, 1, 2, 3.0),
    Sketcher.Constraint("DistanceY", 0, 2, 0, 1, 2.0),
    Sketcher.Constraint("DistanceX", 1, 2, -1, 1, 5.138048),
    Sketcher.Constraint("DistanceY", -1, 1, 0, 2, 7.151166),
])
pad11 = doc.addObject("PartDesign::Pad", "Pad010")
body.addObject(pad11)
pad11.Profile = sketch15
pad11.Length = 2

# Sketch on XY plane
sketch16 = doc.addObject("Sketcher::SketchObject", "Sketch015")
body.addObject(sketch16)
sketch16.AttachmentSupport = (doc.XY_Plane, [""])
sketch16.MapMode = "FlatFace"
sketch16.AttachmentOffset = App.Placement(Vector(0, 0, 1.5), App.Rotation())
sketch16.addGeometry([
    Part.LineSegment(Vector(-8.1, 1.2, 0), Vector(-8.1, -0.8, 0)),
    Part.LineSegment(Vector(-8.1, -0.8, 0), Vector(-5.1, -0.8, 0)),
    Part.LineSegment(Vector(-5.1, -0.8, 0), Vector(-5.1, 1.2, 0)),
    Part.LineSegment(Vector(-5.1, 1.2, 0), Vector(-8.1, 1.2, 0)),
], False)
sketch16.addConstraint([
    Sketcher.Constraint("Coincident", 0, 2, 1, 1),
    Sketcher.Constraint("Coincident", 1, 2, 2, 1),
    Sketcher.Constraint("Coincident", 2, 2, 3, 1),
    Sketcher.Constraint("Coincident", 3, 2, 0, 1),
    Sketcher.Constraint("Vertical", 0),
    Sketcher.Constraint("Horizontal", 1),
    Sketcher.Constraint("Vertical", 2),
    Sketcher.Constraint("Horizontal", 3),
    Sketcher.Constraint("DistanceX", 1, 1, 1, 2, 3.0),
    Sketcher.Constraint("DistanceY", 0, 2, 0, 1, 2.0),
    Sketcher.Constraint("DistanceX", 1, 2, -1, 1, 5.138048),
    Sketcher.Constraint("DistanceY", 0, 2, -1, 1, 0.848834),
])
pad12 = doc.addObject("PartDesign::Pad", "Pad011")
body.addObject(pad12)
pad12.Profile = sketch16
pad12.Length = 2

# Sketch on XY plane
sketch17 = doc.addObject("Sketcher::SketchObject", "Sketch016")
body.addObject(sketch17)
sketch17.AttachmentSupport = (doc.XY_Plane, [""])
sketch17.MapMode = "FlatFace"
sketch17.AttachmentOffset = App.Placement(Vector(0, 0, 1.5), App.Rotation())
sketch17.addGeometry(Part.Circle(Vector(-52.6, 40.7, 0), Vector(0, 0, 1), 2.5), False)
sketch17.addConstraint([
    Sketcher.Constraint("Diameter", 0, 5.0),
    Sketcher.Constraint("DistanceX", 0, 3, -1, 1, 52.638048),
    Sketcher.Constraint("DistanceY", -1, 1, 0, 3, 40.651166),
])
pad13 = doc.addObject("PartDesign::Pad", "Pad012")
body.addObject(pad13)
pad13.Profile = sketch17
pad13.Length = 2

# Sketch on XY plane
sketch18 = doc.addObject("Sketcher::SketchObject", "Sketch017")
body.addObject(sketch18)
sketch18.AttachmentSupport = (doc.XY_Plane, [""])
sketch18.MapMode = "FlatFace"
sketch18.AttachmentOffset = App.Placement(Vector(0, 0, 1.5), App.Rotation())
sketch18.addGeometry(Part.Circle(Vector(-52.6, -13.3, 0), Vector(0, 0, 1), 2.5), False)
sketch18.addConstraint([
    Sketcher.Constraint("Diameter", 0, 5.0),
    Sketcher.Constraint("DistanceX", 0, 3, -1, 1, 52.638048),
    Sketcher.Constraint("DistanceY", 0, 3, -1, 1, 13.348834),
])
pad14 = doc.addObject("PartDesign::Pad", "Pad013")
body.addObject(pad14)
pad14.Profile = sketch18
pad14.Length = 2

# Sketch on XY plane
sketch19 = doc.addObject("Sketcher::SketchObject", "Sketch018")
body.addObject(sketch19)
sketch19.AttachmentSupport = (doc.XY_Plane, [""])
sketch19.MapMode = "FlatFace"
sketch19.AttachmentOffset = App.Placement(Vector(0, 0, 1.5), App.Rotation())
sketch19.addGeometry([
    Part.LineSegment(Vector(-33.1, 41.7, 0), Vector(-33.1, 37.7, 0)),
    Part.LineSegment(Vector(-33.1, 37.7, 0), Vector(-30.1, 37.7, 0)),
    Part.LineSegment(Vector(-30.1, 37.7, 0), Vector(-30.1, 41.7, 0)),
    Part.LineSegment(Vector(-30.1, 41.7, 0), Vector(-33.1, 41.7, 0)),
], False)
sketch19.addConstraint([
    Sketcher.Constraint("Coincident", 0, 2, 1, 1),
    Sketcher.Constraint("Coincident", 1, 2, 2, 1),
    Sketcher.Constraint("Coincident", 2, 2, 3, 1),
    Sketcher.Constraint("Coincident", 3, 2, 0, 1),
    Sketcher.Constraint("Vertical", 0),
    Sketcher.Constraint("Horizontal", 1),
    Sketcher.Constraint("Vertical", 2),
    Sketcher.Constraint("Horizontal", 3),
    Sketcher.Constraint("DistanceX", 1, 1, 1, 2, 3.0),
    Sketcher.Constraint("DistanceY", 0, 2, 0, 1, 4.0),
    Sketcher.Constraint("DistanceX", 1, 2, -1, 1, 30.138048),
    Sketcher.Constraint("DistanceY", -1, 1, 0, 2, 37.651166),
])
pad15 = doc.addObject("PartDesign::Pad", "Pad014")
body.addObject(pad15)
pad15.Profile = sketch19
pad15.Length = 1

# Sketch on XY plane
sketch20 = doc.addObject("Sketcher::SketchObject", "Sketch019")
body.addObject(sketch20)
sketch20.AttachmentSupport = (doc.XY_Plane, [""])
sketch20.MapMode = "FlatFace"
sketch20.AttachmentOffset = App.Placement(Vector(0, 0, 1.5), App.Rotation())
sketch20.addGeometry([
    Part.LineSegment(Vector(-37.6, 32.7, 0), Vector(-37.6, 29.7, 0)),
    Part.LineSegment(Vector(-37.6, 29.7, 0), Vector(-35.6, 29.7, 0)),
    Part.LineSegment(Vector(-35.6, 29.7, 0), Vector(-35.6, 32.7, 0)),
    Part.LineSegment(Vector(-35.6, 32.7, 0), Vector(-37.6, 32.7, 0)),
], False)
sketch20.addConstraint([
    Sketcher.Constraint("Coincident", 0, 2, 1, 1),
    Sketcher.Constraint("Coincident", 1, 2, 2, 1),
    Sketcher.Constraint("Coincident", 2, 2, 3, 1),
    Sketcher.Constraint("Coincident", 3, 2, 0, 1),
    Sketcher.Constraint("Vertical", 0),
    Sketcher.Constraint("Horizontal", 1),
    Sketcher.Constraint("Vertical", 2),
    Sketcher.Constraint("Horizontal", 3),
    Sketcher.Constraint("DistanceX", 1, 1, 1, 2, 2.0),
    Sketcher.Constraint("DistanceY", 0, 2, 0, 1, 3.0),
    Sketcher.Constraint("DistanceX", 0, 2, -1, 1, 37.638048),
    Sketcher.Constraint("DistanceY", -1, 1, 0, 2, 29.651166),
])
pad16 = doc.addObject("PartDesign::Pad", "Pad015")
body.addObject(pad16)
pad16.Profile = sketch20
pad16.Length = 2

doc.recompute()
